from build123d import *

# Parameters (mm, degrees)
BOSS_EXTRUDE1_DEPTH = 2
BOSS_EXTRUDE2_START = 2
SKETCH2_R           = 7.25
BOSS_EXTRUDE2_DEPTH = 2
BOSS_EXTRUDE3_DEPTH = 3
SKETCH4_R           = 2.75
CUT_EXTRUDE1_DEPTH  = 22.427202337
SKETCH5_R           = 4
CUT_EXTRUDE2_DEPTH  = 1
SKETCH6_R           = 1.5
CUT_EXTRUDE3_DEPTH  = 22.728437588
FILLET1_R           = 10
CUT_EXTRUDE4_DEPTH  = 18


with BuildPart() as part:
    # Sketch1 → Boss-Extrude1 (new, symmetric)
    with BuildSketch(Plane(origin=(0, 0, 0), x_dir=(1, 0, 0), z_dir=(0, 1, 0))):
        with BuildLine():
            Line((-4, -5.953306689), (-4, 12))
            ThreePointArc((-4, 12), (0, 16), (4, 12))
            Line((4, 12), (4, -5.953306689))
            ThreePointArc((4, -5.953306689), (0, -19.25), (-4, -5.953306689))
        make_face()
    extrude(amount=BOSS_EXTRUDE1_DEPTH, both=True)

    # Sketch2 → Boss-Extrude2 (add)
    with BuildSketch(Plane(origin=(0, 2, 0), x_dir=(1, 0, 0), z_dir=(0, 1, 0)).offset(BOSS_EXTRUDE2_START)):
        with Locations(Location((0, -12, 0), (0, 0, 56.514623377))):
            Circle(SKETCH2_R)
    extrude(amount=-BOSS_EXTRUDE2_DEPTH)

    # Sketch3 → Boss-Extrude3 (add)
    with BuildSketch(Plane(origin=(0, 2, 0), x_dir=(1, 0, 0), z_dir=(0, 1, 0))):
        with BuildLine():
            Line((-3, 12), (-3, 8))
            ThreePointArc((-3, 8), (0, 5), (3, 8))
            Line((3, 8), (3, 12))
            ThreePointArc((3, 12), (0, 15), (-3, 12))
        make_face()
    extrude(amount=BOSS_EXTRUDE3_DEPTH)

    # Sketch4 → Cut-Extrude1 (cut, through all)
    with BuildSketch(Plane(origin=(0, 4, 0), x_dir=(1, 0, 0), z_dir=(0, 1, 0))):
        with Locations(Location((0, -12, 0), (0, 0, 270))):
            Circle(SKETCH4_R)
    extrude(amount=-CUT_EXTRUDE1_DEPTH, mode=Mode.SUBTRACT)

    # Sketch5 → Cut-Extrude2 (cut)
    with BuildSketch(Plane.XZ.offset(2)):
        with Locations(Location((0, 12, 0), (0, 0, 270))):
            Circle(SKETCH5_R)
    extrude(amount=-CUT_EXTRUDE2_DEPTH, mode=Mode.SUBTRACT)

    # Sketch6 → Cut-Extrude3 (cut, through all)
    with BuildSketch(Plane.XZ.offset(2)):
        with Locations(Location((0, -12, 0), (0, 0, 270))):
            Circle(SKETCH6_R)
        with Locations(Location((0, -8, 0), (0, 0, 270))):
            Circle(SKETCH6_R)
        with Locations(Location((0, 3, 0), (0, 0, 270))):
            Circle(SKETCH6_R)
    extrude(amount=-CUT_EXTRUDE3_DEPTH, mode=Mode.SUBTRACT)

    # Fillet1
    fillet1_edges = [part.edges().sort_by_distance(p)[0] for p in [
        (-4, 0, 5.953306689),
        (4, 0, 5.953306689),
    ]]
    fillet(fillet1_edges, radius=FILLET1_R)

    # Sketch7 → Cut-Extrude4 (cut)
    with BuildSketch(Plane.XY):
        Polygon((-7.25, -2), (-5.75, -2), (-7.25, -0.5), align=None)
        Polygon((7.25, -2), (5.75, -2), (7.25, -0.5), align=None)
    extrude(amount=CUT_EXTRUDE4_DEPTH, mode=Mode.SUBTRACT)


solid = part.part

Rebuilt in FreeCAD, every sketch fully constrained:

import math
import FreeCAD as App
import Part
import Sketcher
from FreeCAD import Vector
Q = App.Units.Quantity


def edges_at(feature, points):
    """Names of the edges that pass closest to the given points."""
    edges = feature.Shape.Edges
    near = lambda p: min(range(len(edges)), key=lambda i: edges[i].distToShape(Part.Vertex(*p))[0])
    return sorted({f"Edge{near(p) + 1}" for p in points})


def add_polygon(sketch, points):
    """Adds a closed chain of lines whose ends are joined by coincident constraints."""
    first, n = sketch.GeometryCount, len(points)
    for a, b in zip(points, points[1:] + points[:1]):
        sketch.addGeometry(Part.LineSegment(App.Vector(*a, 0), App.Vector(*b, 0)), False)
    for i in range(n):
        sketch.addConstraint(Sketcher.Constraint("Coincident", first + i, 2, first + (i + 1) % n, 1))

doc = App.newDocument("Part")
body = doc.addObject("PartDesign::Body", "Body")

# Sketch on XZ plane
sketch1 = body.newObject("Sketcher::SketchObject", "Sketch")
sketch1.AttachmentSupport = (doc.getObject("XZ_Plane"), [""])
sketch1.MapMode = "FlatFace"
sketch1.addGeometry([
    Part.LineSegment(Vector(-4, -12, 0), Vector(-4, 6, 0)),
    Part.ArcOfCircle(Part.Circle(Vector(0, 12, 0), Vector(0, 0, 1), 7.2), math.radians(-57), math.radians(237)),
    Part.LineSegment(Vector(4, 6, 0), Vector(4, -12, 0)),
    Part.ArcOfCircle(Part.Circle(Vector(0, -12, 0), Vector(0, 0, 1), 4), math.radians(180), math.radians(360)),
], False)
sketch1.addConstraint([
    Sketcher.Constraint("Coincident", 0, 2, 1, 2),
    Sketcher.Constraint("Coincident", 1, 1, 2, 1),
    Sketcher.Constraint("Tangent", 2, 2, 3, 2),
    Sketcher.Constraint("Tangent", 3, 1, 0, 1),
    Sketcher.Constraint("Vertical", 0),
    Sketcher.Constraint("Vertical", 2),
    Sketcher.Constraint("Symmetric", 1, 3, 3, 3, -1, 1),
    Sketcher.Constraint("PointOnObject", 1, 3, -2),
    Sketcher.Constraint("Radius", 3, Q("4 mm")),
    Sketcher.Constraint("Radius", 1, Q("7.25 mm")),
    Sketcher.Constraint("DistanceY", -1, 1, 1, 3, Q("12 mm")),
])
pad1 = body.newObject("PartDesign::Pad", "Pad")
pad1.Profile = sketch1
pad1.Length = 4
pad1.Midplane = True

# Sketch on XZ plane
sketch2 = body.newObject("Sketcher::SketchObject", "Sketch001")
sketch2.AttachmentSupport = (doc.getObject("XZ_Plane"), [""])
sketch2.MapMode = "FlatFace"
sketch2.AttachmentOffset = App.Placement(Vector(0, 0, -4), App.Rotation())
sketch2.addGeometry(Part.Circle(Vector(0, 12, 0), Vector(0, 0, 1), 7), False)
sketch2.addConstraint([
    Sketcher.Constraint("PointOnObject", 0, 3, -2),
    Sketcher.Constraint("Diameter", 0, Q("14.5 mm")),
    Sketcher.Constraint("DistanceY", -1, 1, 0, 3, Q("12 mm")),
])
pad2 = body.newObject("PartDesign::Pad", "Pad001")
pad2.Profile = sketch2
pad2.Length = 2

# Sketch on XZ plane
sketch3 = body.newObject("Sketcher::SketchObject", "Sketch002")
sketch3.AttachmentSupport = (doc.getObject("XZ_Plane"), [""])
sketch3.MapMode = "FlatFace"
sketch3.AttachmentOffset = App.Placement(Vector(0, 0, -2), App.Rotation())
sketch3.addGeometry([
    Part.LineSegment(Vector(-3, -12, 0), Vector(-3, -8, 0)),
    Part.ArcOfCircle(Part.Circle(Vector(0, -8, 0), Vector(0, 0, 1), 3), math.radians(0), math.radians(180)),
    Part.LineSegment(Vector(3, -8, 0), Vector(3, -12, 0)),
    Part.ArcOfCircle(Part.Circle(Vector(0, -12, 0), Vector(0, 0, 1), 3), math.radians(180), math.radians(360)),
], False)
sketch3.addConstraint([
    Sketcher.Constraint("Tangent", 0, 2, 1, 2),
    Sketcher.Constraint("Tangent", 1, 1, 2, 1),
    Sketcher.Constraint("Tangent", 2, 2, 3, 2),
    Sketcher.Constraint("Tangent", 3, 1, 0, 1),
    Sketcher.Constraint("Vertical", 0),
    Sketcher.Constraint("Vertical", 2),
    Sketcher.Constraint("PointOnObject", 1, 3, -2),
    Sketcher.Constraint("Radius", 1, Q("3 mm")),
    Sketcher.Constraint("DistanceY", 0, 1, 0, 2, Q("4 mm")),
    Sketcher.Constraint("DistanceY", 1, 3, -1, 1, Q("8 mm")),
])
pad3 = body.newObject("PartDesign::Pad", "Pad002")
pad3.Profile = sketch3
pad3.Length = 3
pad3.Reversed = True

# Sketch on XZ plane
sketch4 = body.newObject("Sketcher::SketchObject", "Sketch003")
sketch4.AttachmentSupport = (doc.getObject("XZ_Plane"), [""])
sketch4.MapMode = "FlatFace"
sketch4.AttachmentOffset = App.Placement(Vector(0, 0, -4), App.Rotation())
sketch4.addGeometry(Part.Circle(Vector(0, 12, 0), Vector(0, 0, 1), 2.8), False)
sketch4.addConstraint([
    Sketcher.Constraint("PointOnObject", 0, 3, -2),
    Sketcher.Constraint("Diameter", 0, Q("5.5 mm")),
    Sketcher.Constraint("DistanceY", -1, 1, 0, 3, Q("12 mm")),
])
pocket1 = body.newObject("PartDesign::Pocket", "Pocket")
pocket1.Profile = sketch4
pocket1.Type = "ThroughAll"
pocket1.Reversed = True

# Sketch on XZ plane
sketch5 = body.newObject("Sketcher::SketchObject", "Sketch004")
sketch5.AttachmentSupport = (doc.getObject("XZ_Plane"), [""])
sketch5.MapMode = "FlatFace"
sketch5.AttachmentOffset = App.Placement(Vector(0, 0, 2), App.Rotation())
sketch5.addGeometry(Part.Circle(Vector(0, 12, 0), Vector(0, 0, 1), 4), False)
sketch5.addConstraint([
    Sketcher.Constraint("PointOnObject", 0, 3, -2),
    Sketcher.Constraint("Diameter", 0, Q("8 mm")),
    Sketcher.Constraint("DistanceY", -1, 1, 0, 3, Q("12 mm")),
])
pocket2 = body.newObject("PartDesign::Pocket", "Pocket001")
pocket2.Profile = sketch5
pocket2.Length = 1

# Sketch on XZ plane
sketch6 = body.newObject("Sketcher::SketchObject", "Sketch005")
sketch6.AttachmentSupport = (doc.getObject("XZ_Plane"), [""])
sketch6.MapMode = "FlatFace"
sketch6.AttachmentOffset = App.Placement(Vector(0, 0, 2), App.Rotation())
sketch6.addGeometry([
    Part.Circle(Vector(0, -12, 0), Vector(0, 0, 1), 1.5),
    Part.Circle(Vector(0, -8, 0), Vector(0, 0, 1), 1.5),
    Part.Circle(Vector(0, 3, 0), Vector(0, 0, 1), 1.5),
], False)
sketch6.addConstraint([
    Sketcher.Constraint("Equal", 0, 1),
    Sketcher.Constraint("Equal", 1, 2),
    Sketcher.Constraint("PointOnObject", 0, 3, -2),
    Sketcher.Constraint("PointOnObject", 1, 3, -2),
    Sketcher.Constraint("PointOnObject", 2, 3, -2),
    Sketcher.Constraint("Diameter", 0, Q("3 mm")),
    Sketcher.Constraint("DistanceY", 0, 3, -1, 1, Q("12 mm")),
    Sketcher.Constraint("DistanceY", 1, 3, -1, 1, Q("8 mm")),
    Sketcher.Constraint("DistanceY", -1, 1, 2, 3, Q("3 mm")),
])
pocket3 = body.newObject("PartDesign::Pocket", "Pocket002")
pocket3.Profile = sketch6
pocket3.Type = "ThroughAll"
doc.recompute()

fillet = body.newObject("PartDesign::Fillet", "Fillet")
fillet.Base = (pocket3, edges_at(pocket3, [(-4, 0, 5.953), (4, 0, 5.953)]))
fillet.Radius = 10

# Sketch on XY plane
sketch7 = body.newObject("Sketcher::SketchObject", "Sketch006")
sketch7.AttachmentSupport = (doc.getObject("XY_Plane"), [""])
sketch7.MapMode = "FlatFace"
add_polygon(sketch7, [(-7.2, -2), (-5.8, -2), (-7.2, -0.5)])  # lines 0-2
add_polygon(sketch7, [(5.8, -2), (7.2, -2), (7.2, -0.5)])  # lines 3-5
sketch7.addConstraint([
    Sketcher.Constraint("Horizontal", 0),
    Sketcher.Constraint("Vertical", 2),
    Sketcher.Constraint("Horizontal", 3),
    Sketcher.Constraint("Vertical", 4),
    Sketcher.Constraint("Symmetric", 2, 2, 3, 2, -2),
    Sketcher.Constraint("Perpendicular", 1, 5),
    Sketcher.Constraint("Horizontal", 1, 2, 4, 2),
    Sketcher.Constraint("Equal", 0, 3),
    Sketcher.Constraint("DistanceX", 0, 1, 0, 2, Q("1.5 mm")),
    Sketcher.Constraint("DistanceY", 0, 2, -1, 1, Q("2 mm")),
    Sketcher.Constraint("DistanceX", 0, 2, 3, 2, Q("13 mm")),
])
pocket4 = body.newObject("PartDesign::Pocket", "Pocket003")
pocket4.Profile = sketch7
pocket4.Length = 18
pocket4.Reversed = True

doc.recompute()
